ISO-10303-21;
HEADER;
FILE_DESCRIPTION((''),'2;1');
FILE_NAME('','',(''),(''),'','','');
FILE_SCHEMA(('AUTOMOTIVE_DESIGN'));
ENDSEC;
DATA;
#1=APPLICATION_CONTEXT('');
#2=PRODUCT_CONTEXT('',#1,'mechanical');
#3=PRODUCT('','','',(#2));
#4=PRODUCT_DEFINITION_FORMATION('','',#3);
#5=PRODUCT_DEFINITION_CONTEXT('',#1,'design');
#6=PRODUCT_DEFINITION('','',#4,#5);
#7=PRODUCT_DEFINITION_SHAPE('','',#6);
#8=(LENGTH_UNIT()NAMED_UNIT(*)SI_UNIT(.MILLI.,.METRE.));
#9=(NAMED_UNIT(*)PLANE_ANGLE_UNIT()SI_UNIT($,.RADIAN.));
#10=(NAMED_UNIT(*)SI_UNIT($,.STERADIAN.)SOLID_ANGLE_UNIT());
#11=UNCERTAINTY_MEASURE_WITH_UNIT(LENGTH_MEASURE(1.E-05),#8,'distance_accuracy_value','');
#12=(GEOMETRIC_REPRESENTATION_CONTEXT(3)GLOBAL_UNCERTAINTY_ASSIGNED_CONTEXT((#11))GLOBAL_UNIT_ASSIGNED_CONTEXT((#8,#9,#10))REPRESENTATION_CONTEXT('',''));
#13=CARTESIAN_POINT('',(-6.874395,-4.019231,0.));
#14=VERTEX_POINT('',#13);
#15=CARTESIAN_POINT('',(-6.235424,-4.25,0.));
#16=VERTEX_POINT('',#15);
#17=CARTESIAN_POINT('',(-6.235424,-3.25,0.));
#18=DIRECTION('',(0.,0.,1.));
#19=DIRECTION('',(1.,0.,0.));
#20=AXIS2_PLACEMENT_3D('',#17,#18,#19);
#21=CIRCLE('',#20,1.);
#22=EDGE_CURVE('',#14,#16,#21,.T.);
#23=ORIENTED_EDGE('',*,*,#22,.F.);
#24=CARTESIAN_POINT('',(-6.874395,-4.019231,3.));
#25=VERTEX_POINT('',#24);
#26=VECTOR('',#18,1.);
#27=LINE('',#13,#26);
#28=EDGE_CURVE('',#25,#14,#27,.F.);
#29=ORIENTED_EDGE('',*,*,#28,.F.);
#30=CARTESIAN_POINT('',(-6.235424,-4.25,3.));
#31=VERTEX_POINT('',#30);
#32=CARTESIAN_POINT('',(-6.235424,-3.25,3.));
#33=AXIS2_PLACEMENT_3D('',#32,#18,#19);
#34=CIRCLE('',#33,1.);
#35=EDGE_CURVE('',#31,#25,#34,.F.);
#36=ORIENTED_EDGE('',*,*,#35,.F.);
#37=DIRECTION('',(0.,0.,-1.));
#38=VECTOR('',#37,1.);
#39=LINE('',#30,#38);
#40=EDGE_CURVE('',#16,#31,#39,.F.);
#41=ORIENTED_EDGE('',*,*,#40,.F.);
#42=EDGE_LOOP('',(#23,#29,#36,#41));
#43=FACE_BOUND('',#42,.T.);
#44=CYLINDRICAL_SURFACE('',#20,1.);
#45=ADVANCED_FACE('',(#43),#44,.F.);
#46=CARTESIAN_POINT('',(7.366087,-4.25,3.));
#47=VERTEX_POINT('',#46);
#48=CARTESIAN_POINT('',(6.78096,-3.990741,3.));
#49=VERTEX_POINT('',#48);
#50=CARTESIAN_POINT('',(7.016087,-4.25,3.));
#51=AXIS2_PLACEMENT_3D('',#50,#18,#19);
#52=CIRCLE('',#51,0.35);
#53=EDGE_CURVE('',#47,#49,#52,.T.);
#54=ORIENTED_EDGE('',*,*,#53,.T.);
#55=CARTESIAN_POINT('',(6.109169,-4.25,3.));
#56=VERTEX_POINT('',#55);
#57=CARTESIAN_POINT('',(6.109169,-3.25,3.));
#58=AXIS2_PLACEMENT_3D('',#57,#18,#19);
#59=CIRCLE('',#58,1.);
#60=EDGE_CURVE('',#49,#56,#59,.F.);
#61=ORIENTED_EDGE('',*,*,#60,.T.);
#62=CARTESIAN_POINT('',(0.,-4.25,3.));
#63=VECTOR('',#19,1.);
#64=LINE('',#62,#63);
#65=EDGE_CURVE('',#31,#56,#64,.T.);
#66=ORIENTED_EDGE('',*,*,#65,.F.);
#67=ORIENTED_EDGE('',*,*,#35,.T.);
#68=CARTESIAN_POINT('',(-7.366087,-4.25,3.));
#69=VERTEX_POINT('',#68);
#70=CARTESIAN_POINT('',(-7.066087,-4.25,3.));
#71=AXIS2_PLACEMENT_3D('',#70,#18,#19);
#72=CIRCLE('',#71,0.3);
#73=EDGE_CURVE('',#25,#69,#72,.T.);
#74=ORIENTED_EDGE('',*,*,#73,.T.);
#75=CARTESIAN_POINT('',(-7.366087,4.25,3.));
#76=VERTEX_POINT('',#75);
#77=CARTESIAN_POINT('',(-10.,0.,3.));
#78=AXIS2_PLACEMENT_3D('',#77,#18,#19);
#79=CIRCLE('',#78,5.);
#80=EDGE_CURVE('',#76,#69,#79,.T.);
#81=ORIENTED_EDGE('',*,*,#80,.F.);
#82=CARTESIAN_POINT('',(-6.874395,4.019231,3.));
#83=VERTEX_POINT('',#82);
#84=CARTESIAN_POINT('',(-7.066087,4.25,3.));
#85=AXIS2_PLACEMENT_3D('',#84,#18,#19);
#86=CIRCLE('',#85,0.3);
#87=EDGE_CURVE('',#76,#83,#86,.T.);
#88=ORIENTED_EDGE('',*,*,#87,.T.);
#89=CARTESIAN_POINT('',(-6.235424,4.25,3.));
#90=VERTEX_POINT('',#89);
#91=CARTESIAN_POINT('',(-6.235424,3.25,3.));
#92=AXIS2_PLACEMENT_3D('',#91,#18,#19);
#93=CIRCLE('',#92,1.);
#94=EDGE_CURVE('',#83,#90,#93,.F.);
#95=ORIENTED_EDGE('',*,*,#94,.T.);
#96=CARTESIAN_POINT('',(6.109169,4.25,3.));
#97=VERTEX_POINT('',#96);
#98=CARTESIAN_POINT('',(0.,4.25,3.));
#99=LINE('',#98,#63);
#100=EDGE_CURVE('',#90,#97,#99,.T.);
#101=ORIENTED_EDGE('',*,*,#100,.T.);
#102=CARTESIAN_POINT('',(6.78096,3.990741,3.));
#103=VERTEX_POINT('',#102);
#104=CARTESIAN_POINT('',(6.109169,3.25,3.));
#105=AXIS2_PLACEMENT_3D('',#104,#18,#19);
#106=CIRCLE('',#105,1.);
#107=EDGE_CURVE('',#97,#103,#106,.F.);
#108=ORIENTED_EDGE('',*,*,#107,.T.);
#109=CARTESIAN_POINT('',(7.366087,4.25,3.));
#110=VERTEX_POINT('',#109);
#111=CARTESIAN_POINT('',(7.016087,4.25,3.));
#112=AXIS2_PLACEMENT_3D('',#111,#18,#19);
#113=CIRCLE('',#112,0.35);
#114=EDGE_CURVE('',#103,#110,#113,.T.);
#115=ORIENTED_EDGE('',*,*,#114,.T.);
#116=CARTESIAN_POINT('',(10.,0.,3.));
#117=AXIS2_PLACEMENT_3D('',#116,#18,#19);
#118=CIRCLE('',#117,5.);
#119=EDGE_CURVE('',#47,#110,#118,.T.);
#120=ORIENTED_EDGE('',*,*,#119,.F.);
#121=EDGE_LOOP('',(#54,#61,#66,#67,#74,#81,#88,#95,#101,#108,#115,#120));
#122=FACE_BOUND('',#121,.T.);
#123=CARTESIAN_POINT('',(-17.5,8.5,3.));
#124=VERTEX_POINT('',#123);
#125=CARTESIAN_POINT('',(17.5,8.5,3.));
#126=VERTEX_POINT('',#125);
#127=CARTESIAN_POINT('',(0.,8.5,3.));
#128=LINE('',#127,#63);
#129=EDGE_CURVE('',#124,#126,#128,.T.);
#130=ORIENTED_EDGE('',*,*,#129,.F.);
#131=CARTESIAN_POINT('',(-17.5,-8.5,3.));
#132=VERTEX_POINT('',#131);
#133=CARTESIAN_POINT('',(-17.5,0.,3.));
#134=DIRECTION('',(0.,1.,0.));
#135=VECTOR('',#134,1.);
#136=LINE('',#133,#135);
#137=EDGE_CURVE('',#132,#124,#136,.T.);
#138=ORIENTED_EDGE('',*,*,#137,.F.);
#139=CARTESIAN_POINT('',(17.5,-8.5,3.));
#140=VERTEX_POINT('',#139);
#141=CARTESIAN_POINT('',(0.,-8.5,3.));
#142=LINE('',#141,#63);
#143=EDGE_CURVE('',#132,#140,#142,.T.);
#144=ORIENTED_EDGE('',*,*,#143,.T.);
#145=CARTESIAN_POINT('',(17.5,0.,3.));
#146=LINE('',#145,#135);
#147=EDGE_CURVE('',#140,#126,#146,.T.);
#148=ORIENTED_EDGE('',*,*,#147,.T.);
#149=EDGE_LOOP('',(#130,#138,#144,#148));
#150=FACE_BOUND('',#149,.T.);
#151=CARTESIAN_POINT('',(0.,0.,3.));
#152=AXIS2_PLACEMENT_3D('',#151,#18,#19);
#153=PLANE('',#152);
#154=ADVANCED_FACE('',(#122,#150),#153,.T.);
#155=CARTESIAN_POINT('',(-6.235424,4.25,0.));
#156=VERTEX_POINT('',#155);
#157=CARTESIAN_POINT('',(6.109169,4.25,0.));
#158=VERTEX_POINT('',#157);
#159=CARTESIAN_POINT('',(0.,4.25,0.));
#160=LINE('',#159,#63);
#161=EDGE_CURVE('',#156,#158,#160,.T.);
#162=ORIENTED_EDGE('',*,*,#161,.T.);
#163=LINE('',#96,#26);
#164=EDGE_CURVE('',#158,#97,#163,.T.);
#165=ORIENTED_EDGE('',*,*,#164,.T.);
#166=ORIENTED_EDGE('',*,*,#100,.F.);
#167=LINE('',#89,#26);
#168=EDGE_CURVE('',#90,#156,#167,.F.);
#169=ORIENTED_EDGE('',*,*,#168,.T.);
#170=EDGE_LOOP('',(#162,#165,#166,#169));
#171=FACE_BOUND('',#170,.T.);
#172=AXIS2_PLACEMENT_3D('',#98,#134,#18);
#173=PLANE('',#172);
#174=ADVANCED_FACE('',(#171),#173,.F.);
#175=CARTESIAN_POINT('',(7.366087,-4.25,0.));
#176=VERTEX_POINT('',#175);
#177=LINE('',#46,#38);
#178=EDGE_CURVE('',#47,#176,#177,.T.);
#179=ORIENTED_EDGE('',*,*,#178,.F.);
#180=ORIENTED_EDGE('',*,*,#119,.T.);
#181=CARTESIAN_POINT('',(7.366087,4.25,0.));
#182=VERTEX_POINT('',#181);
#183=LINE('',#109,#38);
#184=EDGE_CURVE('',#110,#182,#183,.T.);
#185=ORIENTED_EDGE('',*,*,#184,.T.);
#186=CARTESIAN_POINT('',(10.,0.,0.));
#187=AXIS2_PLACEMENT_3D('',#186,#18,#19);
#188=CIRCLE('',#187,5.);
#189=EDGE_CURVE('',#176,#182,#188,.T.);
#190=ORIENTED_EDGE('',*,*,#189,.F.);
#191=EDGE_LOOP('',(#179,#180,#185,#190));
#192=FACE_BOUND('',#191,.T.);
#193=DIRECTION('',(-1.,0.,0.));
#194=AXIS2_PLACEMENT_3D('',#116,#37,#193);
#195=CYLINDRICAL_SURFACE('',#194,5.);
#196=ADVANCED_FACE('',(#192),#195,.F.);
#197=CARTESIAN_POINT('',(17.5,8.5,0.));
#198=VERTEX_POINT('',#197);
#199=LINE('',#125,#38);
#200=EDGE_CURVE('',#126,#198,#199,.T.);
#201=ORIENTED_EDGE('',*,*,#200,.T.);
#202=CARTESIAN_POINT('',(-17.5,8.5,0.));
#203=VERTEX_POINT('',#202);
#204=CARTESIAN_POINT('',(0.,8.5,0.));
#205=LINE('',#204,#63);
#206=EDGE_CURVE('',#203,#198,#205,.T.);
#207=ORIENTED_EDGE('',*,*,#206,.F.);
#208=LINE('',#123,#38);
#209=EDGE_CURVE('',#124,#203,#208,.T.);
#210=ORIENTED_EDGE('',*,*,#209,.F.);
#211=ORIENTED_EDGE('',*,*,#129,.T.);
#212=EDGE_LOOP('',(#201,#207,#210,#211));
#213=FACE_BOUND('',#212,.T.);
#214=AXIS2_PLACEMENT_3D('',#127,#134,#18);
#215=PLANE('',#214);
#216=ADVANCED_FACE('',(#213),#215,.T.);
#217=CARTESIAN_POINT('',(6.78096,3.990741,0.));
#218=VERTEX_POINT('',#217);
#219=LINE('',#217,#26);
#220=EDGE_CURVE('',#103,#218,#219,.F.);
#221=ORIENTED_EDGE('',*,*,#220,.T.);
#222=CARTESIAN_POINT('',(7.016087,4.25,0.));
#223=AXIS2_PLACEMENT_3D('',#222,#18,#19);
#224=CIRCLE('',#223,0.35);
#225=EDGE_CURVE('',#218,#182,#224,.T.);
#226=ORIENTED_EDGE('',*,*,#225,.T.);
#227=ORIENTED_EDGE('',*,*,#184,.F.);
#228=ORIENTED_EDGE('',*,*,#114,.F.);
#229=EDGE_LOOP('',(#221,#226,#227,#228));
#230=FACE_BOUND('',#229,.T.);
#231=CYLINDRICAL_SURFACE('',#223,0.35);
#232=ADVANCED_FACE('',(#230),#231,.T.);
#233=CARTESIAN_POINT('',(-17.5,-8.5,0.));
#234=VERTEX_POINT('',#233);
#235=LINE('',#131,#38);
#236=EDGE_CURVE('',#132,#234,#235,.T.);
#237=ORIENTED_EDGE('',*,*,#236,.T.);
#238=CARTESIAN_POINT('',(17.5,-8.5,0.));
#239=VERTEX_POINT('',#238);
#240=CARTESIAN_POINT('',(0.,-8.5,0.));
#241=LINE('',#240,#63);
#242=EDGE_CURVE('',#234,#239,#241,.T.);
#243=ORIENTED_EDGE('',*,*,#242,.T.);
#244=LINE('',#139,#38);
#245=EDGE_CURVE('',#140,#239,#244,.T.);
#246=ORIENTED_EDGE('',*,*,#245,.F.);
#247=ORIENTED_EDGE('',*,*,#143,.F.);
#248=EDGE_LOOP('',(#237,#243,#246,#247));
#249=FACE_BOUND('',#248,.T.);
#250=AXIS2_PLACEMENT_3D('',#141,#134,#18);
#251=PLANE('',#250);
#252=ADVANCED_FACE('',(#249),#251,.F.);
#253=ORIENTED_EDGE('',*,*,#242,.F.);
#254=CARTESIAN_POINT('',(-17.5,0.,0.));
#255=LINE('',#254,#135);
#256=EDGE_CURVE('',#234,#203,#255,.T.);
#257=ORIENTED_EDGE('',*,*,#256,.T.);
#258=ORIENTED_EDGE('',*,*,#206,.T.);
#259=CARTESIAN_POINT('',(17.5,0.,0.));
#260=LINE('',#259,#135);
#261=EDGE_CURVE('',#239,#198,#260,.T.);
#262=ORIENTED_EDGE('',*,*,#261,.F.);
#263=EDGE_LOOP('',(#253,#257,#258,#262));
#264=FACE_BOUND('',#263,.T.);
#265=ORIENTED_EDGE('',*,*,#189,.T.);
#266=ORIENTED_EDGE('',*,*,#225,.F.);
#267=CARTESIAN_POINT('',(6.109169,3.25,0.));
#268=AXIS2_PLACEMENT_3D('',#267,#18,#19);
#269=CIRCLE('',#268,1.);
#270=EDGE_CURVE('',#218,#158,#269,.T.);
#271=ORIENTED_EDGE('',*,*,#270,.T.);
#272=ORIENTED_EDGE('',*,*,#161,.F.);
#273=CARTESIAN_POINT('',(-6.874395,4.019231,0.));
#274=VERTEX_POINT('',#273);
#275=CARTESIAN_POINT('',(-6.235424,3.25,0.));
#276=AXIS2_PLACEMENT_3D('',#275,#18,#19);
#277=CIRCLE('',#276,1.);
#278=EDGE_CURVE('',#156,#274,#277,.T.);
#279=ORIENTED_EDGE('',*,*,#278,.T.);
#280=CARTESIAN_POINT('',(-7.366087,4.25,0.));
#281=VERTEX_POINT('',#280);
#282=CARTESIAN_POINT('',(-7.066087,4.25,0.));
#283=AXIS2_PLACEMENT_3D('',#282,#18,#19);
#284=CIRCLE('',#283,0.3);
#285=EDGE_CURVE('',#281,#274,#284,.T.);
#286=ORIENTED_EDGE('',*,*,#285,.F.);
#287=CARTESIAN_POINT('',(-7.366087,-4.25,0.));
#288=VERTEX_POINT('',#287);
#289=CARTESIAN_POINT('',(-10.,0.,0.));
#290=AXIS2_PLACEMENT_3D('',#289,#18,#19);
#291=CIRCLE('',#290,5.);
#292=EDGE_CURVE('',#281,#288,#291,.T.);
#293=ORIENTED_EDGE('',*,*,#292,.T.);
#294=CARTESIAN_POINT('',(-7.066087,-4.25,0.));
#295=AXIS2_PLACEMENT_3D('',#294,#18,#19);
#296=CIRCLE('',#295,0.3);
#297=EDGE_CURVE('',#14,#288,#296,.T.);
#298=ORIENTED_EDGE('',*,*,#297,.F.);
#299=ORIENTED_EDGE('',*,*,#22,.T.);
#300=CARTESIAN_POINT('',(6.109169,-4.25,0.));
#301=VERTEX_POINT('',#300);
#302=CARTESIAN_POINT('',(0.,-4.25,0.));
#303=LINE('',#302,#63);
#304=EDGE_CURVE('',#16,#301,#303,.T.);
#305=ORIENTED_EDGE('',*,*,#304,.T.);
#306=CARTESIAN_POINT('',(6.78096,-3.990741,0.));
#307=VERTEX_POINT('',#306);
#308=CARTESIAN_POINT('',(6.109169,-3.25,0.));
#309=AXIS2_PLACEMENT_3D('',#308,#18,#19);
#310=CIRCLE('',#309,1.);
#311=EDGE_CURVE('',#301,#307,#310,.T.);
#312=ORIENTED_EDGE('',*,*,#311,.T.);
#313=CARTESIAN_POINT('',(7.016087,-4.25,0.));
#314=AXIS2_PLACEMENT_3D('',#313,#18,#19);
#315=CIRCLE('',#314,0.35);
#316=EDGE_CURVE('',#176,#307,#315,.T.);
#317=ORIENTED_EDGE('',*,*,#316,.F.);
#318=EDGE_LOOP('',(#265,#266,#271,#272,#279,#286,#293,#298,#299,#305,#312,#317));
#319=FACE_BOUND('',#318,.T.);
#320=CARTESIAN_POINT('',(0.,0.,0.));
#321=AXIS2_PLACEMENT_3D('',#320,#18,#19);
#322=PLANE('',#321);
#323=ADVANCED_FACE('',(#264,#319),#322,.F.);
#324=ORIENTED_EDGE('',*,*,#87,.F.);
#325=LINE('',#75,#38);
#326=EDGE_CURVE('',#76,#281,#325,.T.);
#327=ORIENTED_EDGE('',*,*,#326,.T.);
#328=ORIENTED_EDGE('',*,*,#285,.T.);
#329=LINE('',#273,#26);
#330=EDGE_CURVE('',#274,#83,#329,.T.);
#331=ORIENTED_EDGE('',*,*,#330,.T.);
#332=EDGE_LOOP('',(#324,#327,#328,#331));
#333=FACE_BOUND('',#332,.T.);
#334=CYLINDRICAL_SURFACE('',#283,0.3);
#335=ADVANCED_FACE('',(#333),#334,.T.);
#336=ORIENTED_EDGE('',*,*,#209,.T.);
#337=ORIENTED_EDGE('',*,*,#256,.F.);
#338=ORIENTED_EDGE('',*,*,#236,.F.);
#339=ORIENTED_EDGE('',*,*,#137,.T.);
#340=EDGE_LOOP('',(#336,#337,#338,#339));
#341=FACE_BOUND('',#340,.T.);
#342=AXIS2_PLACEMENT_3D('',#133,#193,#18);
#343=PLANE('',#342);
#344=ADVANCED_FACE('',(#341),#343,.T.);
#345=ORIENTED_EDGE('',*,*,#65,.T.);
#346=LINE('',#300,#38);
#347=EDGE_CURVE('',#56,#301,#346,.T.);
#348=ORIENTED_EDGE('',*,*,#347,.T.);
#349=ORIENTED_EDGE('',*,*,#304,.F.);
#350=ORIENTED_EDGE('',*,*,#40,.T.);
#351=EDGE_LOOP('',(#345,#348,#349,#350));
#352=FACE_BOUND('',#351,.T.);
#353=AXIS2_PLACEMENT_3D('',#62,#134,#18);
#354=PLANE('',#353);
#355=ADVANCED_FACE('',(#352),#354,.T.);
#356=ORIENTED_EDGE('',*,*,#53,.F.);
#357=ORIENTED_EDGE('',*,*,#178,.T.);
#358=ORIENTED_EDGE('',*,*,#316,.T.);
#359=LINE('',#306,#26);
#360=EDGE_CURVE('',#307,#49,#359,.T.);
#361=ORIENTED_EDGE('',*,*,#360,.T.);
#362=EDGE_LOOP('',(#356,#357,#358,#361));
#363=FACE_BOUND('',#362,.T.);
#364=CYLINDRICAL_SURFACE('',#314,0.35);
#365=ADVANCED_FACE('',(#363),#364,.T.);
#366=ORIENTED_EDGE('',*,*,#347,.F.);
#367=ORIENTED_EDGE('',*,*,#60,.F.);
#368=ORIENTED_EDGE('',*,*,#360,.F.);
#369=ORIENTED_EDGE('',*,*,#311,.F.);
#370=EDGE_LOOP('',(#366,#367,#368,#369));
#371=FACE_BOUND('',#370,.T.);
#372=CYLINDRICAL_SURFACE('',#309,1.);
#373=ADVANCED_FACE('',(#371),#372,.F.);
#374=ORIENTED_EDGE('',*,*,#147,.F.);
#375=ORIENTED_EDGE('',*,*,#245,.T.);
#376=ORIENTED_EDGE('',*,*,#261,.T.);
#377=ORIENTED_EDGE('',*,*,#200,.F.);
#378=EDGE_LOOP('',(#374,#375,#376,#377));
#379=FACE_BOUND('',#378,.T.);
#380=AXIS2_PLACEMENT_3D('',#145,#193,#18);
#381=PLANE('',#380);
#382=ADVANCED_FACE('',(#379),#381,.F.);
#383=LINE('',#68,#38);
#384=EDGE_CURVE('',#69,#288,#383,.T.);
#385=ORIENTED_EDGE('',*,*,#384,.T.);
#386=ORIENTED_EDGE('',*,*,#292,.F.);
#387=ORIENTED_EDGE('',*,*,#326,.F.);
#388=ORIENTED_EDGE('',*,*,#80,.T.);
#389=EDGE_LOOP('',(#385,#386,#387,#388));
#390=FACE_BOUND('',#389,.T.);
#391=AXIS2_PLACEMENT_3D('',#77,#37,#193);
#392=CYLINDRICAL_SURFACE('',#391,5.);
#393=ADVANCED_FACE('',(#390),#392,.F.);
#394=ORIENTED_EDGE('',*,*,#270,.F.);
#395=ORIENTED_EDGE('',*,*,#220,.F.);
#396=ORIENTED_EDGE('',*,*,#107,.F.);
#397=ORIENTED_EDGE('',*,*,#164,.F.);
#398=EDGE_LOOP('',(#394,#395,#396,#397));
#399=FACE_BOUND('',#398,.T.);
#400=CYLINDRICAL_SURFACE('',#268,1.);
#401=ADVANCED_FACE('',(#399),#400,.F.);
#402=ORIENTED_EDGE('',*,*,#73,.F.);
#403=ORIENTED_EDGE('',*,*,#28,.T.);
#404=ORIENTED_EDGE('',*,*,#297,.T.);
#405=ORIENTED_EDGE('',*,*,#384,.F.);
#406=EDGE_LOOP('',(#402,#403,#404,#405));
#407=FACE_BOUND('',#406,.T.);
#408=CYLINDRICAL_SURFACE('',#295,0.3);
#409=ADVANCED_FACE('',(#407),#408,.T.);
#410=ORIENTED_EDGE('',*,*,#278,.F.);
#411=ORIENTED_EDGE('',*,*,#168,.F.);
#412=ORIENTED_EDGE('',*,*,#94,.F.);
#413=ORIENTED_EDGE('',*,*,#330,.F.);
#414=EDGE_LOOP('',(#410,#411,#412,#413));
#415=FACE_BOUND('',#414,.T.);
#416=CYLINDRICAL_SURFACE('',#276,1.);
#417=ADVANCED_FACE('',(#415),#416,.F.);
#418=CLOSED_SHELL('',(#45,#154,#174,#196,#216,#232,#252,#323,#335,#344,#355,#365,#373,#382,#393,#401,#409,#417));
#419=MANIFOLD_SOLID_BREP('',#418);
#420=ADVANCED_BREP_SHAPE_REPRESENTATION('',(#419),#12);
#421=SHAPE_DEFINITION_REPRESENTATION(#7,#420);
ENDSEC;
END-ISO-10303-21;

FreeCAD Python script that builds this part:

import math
import FreeCAD as App
import Part
import Sketcher
from FreeCAD import Vector


def edges_at(feature, points):
    """Names of the edges that pass closest to the given points."""
    edges = feature.Shape.Edges
    near = lambda p: min(range(len(edges)), key=lambda i: edges[i].distToShape(Part.Vertex(*p))[0])
    return sorted({f"Edge{near(p) + 1}" for p in points})


def add_polygon(sketch, points):
    """Adds a closed chain of lines whose ends are joined by coincident constraints."""
    first, n = sketch.GeometryCount, len(points)
    for a, b in zip(points, points[1:] + points[:1]):
        sketch.addGeometry(Part.LineSegment(App.Vector(*a, 0), App.Vector(*b, 0)), False)
    for i in range(n):
        sketch.addConstraint(Sketcher.Constraint("Coincident", first + i, 2, first + (i + 1) % n, 1))

doc = App.newDocument("Part")
params = doc.addObject("Spreadsheet::Sheet", "Params")
for row, (alias, value) in enumerate([
    ("sketch1_radius", "5 mm"),
    ("sketch1_width", "35 mm"),
    ("sketch1_height", "17 mm"),
    ("pad1_length", "3 mm"),
    ("sketch2_diameter", "0.6 mm"),
    ("sketch2_diameter2", "0.7 mm"),
    ("pad2_length", "3 mm"),
    ("fillet_radius", "1 mm"),
], start=1):
    params.set(f"A{row}", alias)
    params.set(f"B{row}", "=" + value)
    params.setAlias(f"B{row}", alias)

body = doc.addObject("PartDesign::Body", "Body")

# Sketch on XY plane
sketch1 = body.newObject("Sketcher::SketchObject", "Sketch")
sketch1.AttachmentSupport = (doc.getObject("XY_Plane"), [""])
sketch1.MapMode = "FlatFace"
add_polygon(sketch1, [(-18, 8), (-18, -8), (18, -8), (18, 8)])  # lines 0-3
sketch1.addGeometry(Part.ArcOfCircle(Part.Circle(Vector(10, 0, 0), Vector(0, 0, 1), 5), math.radians(-122), math.radians(0)), False)  # 4
sketch1.addGeometry(Part.LineSegment(Vector(7, -4, 0), Vector(-7, -4, 0)), False)  # 5
sketch1.addGeometry(Part.ArcOfCircle(Part.Circle(Vector(-10, 0, 0), Vector(0, 0, 1), 5), math.radians(58), math.radians(302)), False)  # 6
sketch1.addGeometry(Part.LineSegment(Vector(-7, 4, 0), Vector(7, 4, 0)), False)  # 7
sketch1.addGeometry(Part.ArcOfCircle(Part.Circle(Vector(10, 0, 0), Vector(0, 0, 1), 5), math.radians(0), math.radians(122)), False)  # 8
sketch1.addConstraint([
    Sketcher.Constraint("Coincident", 4, 1, 5, 1),
    Sketcher.Constraint("Coincident", 5, 2, 6, 2),
    Sketcher.Constraint("Coincident", 6, 1, 7, 1),
    Sketcher.Constraint("Coincident", 7, 2, 8, 2),
    Sketcher.Constraint("Tangent", 8, 1, 4, 2),
    Sketcher.Constraint("Vertical", 0),
    Sketcher.Constraint("Horizontal", 1),
    Sketcher.Constraint("Vertical", 2),
    Sketcher.Constraint("Horizontal", 3),
    Sketcher.Constraint("Horizontal", 5),
    Sketcher.Constraint("Horizontal", 7),
    Sketcher.Constraint("Equal", 4, 6),
    Sketcher.Constraint("Equal", 6, 8),
    Sketcher.Constraint("Symmetric", 4, 3, 6, 3, -1, 1),
    Sketcher.Constraint("Symmetric", 0, 2, 2, 2, -1, 1),
    Sketcher.Constraint("Symmetric", 5, 2, 6, 1, -1),
    Sketcher.Constraint("PointOnObject", 8, 1, -1),
    Sketcher.Constraint("Radius", 4, 5.0),
    Sketcher.Constraint("DistanceX", 1, 1, 1, 2, 35.0),
    Sketcher.Constraint("DistanceY", 0, 2, 0, 1, 17.0),
    Sketcher.Constraint("DistanceX", -1, 1, 4, 3, 10.0),
    Sketcher.Constraint("DistanceY", 5, 2, 6, 1, 8.5),
])
sketch1.setExpression("Constraints[21]", "Params.sketch1_radius")
sketch1.setExpression("Constraints[22]", "Params.sketch1_width")
sketch1.setExpression("Constraints[23]", "Params.sketch1_height")
pad1 = body.newObject("PartDesign::Pad", "Pad")
pad1.Profile = sketch1
pad1.setExpression("Length", "Params.pad1_length")

# Sketch on XY plane
sketch2 = body.newObject("Sketcher::SketchObject", "Sketch001")
sketch2.AttachmentSupport = (doc.getObject("XY_Plane"), [""])
sketch2.MapMode = "FlatFace"
sketch2.AttachmentOffset = App.Placement(Vector(0, 0, 3), App.Rotation())
sketch2.addGeometry([
    Part.Circle(Vector(-7.07, 4.25, 0), Vector(0, 0, 1), 0.3),
    Part.Circle(Vector(-7.07, -4.25, 0), Vector(0, 0, 1), 0.3),
    Part.Circle(Vector(7.02, -4.25, 0), Vector(0, 0, 1), 0.35),
    Part.Circle(Vector(7.02, 4.25, 0), Vector(0, 0, 1), 0.35),
], False)
sketch2.addConstraint([
    Sketcher.Constraint("Equal", 0, 1),
    Sketcher.Constraint("Equal", 2, 3),
    Sketcher.Constraint("Symmetric", 0, 3, 1, 3, -1),
    Sketcher.Constraint("Symmetric", 2, 3, 3, 3, -1),
    Sketcher.Constraint("Horizontal", 1, 3, 2, 3),
    Sketcher.Constraint("Diameter", 0, 0.6),
    Sketcher.Constraint("Diameter", 2, 0.7),
    Sketcher.Constraint("DistanceY", 1, 3, 0, 3, 8.5),
    Sketcher.Constraint("DistanceX", 0, 3, -1, 1, 7.066087),
    Sketcher.Constraint("DistanceX", -1, 1, 2, 3, 7.016087),
])
sketch2.setExpression("Constraints[5]", "Params.sketch2_diameter")
sketch2.setExpression("Constraints[6]", "Params.sketch2_diameter2")
pad2 = body.newObject("PartDesign::Pad", "Pad001")
pad2.Profile = sketch2
pad2.setExpression("Length", "Params.pad2_length")
pad2.Reversed = True
doc.recompute()

fillet = body.newObject("PartDesign::Fillet", "Fillet")
fillet.Base = (pad2, edges_at(pad2, [
    (-6.766, 4.25, 1.5),
    (-6.766, -4.25, 1.5),
    (6.666, -4.25, 1.5),
    (6.666, 4.25, 1.5),
]))
fillet.setExpression("Radius", "Params.fillet_radius")

doc.recompute()
